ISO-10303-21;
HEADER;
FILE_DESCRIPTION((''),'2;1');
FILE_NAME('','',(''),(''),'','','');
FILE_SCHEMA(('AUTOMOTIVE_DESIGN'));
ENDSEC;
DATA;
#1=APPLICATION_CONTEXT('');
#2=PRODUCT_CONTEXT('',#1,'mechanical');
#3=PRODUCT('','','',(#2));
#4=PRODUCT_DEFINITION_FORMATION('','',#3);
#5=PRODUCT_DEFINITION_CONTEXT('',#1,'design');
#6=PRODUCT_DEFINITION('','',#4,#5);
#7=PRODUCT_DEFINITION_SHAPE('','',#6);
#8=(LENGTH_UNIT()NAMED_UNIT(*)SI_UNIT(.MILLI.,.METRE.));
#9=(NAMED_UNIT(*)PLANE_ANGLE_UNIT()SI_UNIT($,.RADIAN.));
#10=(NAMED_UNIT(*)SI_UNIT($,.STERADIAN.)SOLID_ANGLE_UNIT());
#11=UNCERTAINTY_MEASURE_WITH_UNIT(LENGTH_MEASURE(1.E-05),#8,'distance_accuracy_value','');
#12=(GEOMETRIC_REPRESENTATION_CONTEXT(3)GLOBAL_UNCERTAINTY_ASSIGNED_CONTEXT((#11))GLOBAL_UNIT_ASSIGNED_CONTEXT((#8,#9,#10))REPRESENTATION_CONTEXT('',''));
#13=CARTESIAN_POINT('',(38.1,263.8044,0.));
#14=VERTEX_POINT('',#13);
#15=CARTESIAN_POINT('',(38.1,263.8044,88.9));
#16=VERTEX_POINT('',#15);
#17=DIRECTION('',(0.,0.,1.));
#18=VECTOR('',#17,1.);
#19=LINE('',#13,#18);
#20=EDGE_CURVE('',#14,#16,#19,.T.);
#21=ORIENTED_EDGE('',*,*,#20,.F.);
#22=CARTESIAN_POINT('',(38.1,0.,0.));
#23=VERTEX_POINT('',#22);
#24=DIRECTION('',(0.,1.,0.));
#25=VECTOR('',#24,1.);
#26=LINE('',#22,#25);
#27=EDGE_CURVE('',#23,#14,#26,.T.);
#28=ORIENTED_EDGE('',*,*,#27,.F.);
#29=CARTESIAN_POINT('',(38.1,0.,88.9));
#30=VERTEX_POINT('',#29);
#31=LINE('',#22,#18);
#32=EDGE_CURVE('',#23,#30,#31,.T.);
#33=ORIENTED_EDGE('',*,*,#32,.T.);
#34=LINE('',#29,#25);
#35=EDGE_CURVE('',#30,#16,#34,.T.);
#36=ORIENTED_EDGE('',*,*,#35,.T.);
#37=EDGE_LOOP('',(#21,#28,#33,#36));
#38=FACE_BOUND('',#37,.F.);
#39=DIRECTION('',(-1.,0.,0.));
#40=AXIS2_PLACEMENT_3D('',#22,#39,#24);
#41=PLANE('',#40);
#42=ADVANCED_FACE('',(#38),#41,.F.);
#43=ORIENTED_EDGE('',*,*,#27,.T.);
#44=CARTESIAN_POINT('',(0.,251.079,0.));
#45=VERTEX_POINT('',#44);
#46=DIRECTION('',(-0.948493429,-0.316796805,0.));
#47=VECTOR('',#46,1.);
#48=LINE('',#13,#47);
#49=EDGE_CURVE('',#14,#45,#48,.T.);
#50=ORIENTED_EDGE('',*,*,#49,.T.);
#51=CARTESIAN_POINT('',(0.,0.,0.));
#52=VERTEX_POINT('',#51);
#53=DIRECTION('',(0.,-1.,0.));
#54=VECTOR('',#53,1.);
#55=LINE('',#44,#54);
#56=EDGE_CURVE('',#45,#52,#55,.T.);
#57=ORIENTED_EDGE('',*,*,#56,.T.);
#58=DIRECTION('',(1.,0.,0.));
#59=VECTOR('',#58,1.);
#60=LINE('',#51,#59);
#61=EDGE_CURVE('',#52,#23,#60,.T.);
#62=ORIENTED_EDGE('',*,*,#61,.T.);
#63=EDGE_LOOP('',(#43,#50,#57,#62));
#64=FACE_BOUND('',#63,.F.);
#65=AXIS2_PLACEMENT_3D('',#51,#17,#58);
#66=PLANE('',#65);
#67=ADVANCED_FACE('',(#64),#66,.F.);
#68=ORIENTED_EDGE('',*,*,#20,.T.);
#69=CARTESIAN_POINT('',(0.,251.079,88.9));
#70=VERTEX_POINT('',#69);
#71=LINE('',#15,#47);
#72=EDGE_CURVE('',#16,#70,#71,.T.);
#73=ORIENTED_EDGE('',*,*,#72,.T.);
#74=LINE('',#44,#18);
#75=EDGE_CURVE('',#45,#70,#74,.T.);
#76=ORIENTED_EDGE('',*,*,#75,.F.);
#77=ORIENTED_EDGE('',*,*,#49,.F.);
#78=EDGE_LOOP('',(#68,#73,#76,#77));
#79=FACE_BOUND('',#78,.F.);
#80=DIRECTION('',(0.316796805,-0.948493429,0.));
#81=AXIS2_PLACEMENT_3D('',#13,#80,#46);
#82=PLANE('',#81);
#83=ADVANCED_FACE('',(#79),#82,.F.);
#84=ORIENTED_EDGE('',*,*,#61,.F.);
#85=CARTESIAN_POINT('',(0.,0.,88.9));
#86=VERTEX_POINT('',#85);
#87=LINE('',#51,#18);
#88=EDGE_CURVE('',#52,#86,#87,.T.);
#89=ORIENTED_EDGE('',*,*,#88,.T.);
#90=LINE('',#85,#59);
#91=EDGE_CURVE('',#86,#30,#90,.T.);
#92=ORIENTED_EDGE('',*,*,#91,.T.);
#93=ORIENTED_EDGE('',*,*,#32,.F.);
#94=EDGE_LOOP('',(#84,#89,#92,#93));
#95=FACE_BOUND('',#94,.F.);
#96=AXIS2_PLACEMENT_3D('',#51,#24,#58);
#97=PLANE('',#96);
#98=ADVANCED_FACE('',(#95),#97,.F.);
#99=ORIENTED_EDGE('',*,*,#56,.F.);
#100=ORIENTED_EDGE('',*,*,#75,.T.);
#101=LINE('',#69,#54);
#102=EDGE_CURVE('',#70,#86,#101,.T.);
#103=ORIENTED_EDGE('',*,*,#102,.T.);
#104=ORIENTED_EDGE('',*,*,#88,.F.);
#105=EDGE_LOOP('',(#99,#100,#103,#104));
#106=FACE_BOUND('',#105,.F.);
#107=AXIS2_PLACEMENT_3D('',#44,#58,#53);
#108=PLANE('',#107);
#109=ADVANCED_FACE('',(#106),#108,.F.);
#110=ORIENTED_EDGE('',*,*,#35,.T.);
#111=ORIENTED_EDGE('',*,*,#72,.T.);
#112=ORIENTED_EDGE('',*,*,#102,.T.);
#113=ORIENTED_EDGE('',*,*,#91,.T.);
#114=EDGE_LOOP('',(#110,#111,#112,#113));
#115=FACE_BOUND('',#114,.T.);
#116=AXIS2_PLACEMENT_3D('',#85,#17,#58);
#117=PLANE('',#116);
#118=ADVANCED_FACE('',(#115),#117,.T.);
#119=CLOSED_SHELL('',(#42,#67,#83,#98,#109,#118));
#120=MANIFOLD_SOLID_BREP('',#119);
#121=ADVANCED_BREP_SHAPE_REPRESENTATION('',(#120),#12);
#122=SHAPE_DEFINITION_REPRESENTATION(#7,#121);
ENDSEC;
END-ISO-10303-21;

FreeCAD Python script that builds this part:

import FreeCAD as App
import Part
import Sketcher

V = App.Vector
Q = App.Units.Quantity

doc = App.newDocument("Part")
body = doc.addObject("PartDesign::Body", "Body")

# Sketch on XY plane
sketch1 = body.newObject("Sketcher::SketchObject", "Sketch")
sketch1.AttachmentSupport = (doc.getObject("XY_Plane"), [""])
sketch1.MapMode = "FlatFace"
sketch1.addGeometry(Part.LineSegment(V(0, 251, 0), V(0, 0, 0)), False)
sketch1.addGeometry(Part.LineSegment(V(0, 0, 0), V(38, 0, 0)), False)
sketch1.addGeometry(Part.LineSegment(V(38, 0, 0), V(38, 264, 0)), False)
sketch1.addGeometry(Part.LineSegment(V(38, 264, 0), V(0, 251, 0)), False)
sketch1.addConstraint(Sketcher.Constraint("Coincident", 0, 2, 1, 1))
sketch1.addConstraint(Sketcher.Constraint("Coincident", 1, 2, 2, 1))
sketch1.addConstraint(Sketcher.Constraint("Coincident", 2, 2, 3, 1))
sketch1.addConstraint(Sketcher.Constraint("Coincident", 3, 2, 0, 1))
sketch1.addConstraint(Sketcher.Constraint("Vertical", 0))
sketch1.addConstraint(Sketcher.Constraint("Horizontal", 1))
sketch1.addConstraint(Sketcher.Constraint("Vertical", 2))
sketch1.addConstraint(Sketcher.Constraint("Coincident", 0, 2, -1, 1))
sketch1.addConstraint(Sketcher.Constraint("DistanceX", 1, 1, 1, 2, Q("1.5 in")))
sketch1.addConstraint(Sketcher.Constraint("DistanceY", 0, 2, 0, 1, Q("9.885 in")))
sketch1.addConstraint(Sketcher.Constraint("DistanceY", 2, 1, 2, 2, Q("10.386 in")))
pad1 = body.newObject("PartDesign::Pad", "Pad")
pad1.Profile = sketch1
pad1.Length = Q("3.5 in")

doc.recompute()
